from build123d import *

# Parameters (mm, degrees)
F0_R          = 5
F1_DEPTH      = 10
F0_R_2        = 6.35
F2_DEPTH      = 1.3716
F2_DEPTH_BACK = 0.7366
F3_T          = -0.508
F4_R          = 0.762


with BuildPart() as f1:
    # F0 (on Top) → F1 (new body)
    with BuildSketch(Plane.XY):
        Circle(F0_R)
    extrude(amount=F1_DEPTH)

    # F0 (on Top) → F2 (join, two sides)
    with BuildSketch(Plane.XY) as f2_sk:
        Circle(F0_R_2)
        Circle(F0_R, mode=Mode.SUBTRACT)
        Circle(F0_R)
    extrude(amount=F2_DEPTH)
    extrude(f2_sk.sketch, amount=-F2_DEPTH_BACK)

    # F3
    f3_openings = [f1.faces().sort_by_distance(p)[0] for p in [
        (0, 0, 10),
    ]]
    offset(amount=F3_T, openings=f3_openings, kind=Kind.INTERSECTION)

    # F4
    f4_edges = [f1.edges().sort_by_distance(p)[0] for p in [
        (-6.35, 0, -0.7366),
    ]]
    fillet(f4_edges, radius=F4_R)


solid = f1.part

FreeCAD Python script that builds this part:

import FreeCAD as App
import Part
import Sketcher
from FreeCAD import Vector
Q = App.Units.Quantity


def edges_at(feature, points):
    """Names of the edges that pass closest to the given points."""
    edges = feature.Shape.Edges
    near = lambda p: min(range(len(edges)), key=lambda i: edges[i].distToShape(Part.Vertex(*p))[0])
    return sorted({f"Edge{near(p) + 1}" for p in points})


def faces_at(feature, points):
    """Names of the faces that lie closest to the given points."""
    faces = feature.Shape.Faces
    near = lambda p: min(range(len(faces)), key=lambda i: faces[i].distToShape(Part.Vertex(*p))[0])
    return sorted({f"Face{near(p) + 1}" for p in points})

doc = App.newDocument("Part")
body = doc.addObject("PartDesign::Body", "Body")

# Sketch on XY plane
sketch1 = body.newObject("Sketcher::SketchObject", "Sketch")
sketch1.AttachmentSupport = (doc.getObject("XY_Plane"), [""])
sketch1.MapMode = "FlatFace"
sketch1.addGeometry(Part.Circle(Vector(0, 0, 0), Vector(0, 0, 1), 5), False)
sketch1.addConstraint([
    Sketcher.Constraint("Coincident", 0, 3, -1, 1),
    Sketcher.Constraint("Diameter", 0, Q("10 mm")),
])
pad1 = body.newObject("PartDesign::Pad", "Pad")
pad1.Profile = sketch1
pad1.Length = 10

# Sketch on XY plane
sketch2 = body.newObject("Sketcher::SketchObject", "Sketch001")
sketch2.AttachmentSupport = (doc.getObject("XY_Plane"), [""])
sketch2.MapMode = "FlatFace"
sketch2.addGeometry(Part.Circle(Vector(0, 0, 0), Vector(0, 0, 1), 6), False)
sketch2.addConstraint([
    Sketcher.Constraint("Coincident", 0, 3, -1, 1),
    Sketcher.Constraint("Diameter", 0, Q("0.5 in")),
])
pad2 = body.newObject("PartDesign::Pad", "Pad001")
pad2.Profile = sketch2
pad2.Type = "TwoLengths"
pad2.Length = Q("0.054 in")
pad2.Length2 = Q("0.029 in")
doc.recompute()

thickness = body.newObject("PartDesign::Thickness", "Thickness")
thickness.Base = (pad2, faces_at(pad2, [(0, 0, 10)]))
thickness.Value = Q("0.02 in")
thickness.Reversed = True
thickness.Join = "Intersection"
doc.recompute()

fillet = body.newObject("PartDesign::Fillet", "Fillet")
fillet.Base = (thickness, edges_at(thickness, [(-6.35, 0, -0.737)]))
fillet.Radius = Q("0.03 in")

doc.recompute()
